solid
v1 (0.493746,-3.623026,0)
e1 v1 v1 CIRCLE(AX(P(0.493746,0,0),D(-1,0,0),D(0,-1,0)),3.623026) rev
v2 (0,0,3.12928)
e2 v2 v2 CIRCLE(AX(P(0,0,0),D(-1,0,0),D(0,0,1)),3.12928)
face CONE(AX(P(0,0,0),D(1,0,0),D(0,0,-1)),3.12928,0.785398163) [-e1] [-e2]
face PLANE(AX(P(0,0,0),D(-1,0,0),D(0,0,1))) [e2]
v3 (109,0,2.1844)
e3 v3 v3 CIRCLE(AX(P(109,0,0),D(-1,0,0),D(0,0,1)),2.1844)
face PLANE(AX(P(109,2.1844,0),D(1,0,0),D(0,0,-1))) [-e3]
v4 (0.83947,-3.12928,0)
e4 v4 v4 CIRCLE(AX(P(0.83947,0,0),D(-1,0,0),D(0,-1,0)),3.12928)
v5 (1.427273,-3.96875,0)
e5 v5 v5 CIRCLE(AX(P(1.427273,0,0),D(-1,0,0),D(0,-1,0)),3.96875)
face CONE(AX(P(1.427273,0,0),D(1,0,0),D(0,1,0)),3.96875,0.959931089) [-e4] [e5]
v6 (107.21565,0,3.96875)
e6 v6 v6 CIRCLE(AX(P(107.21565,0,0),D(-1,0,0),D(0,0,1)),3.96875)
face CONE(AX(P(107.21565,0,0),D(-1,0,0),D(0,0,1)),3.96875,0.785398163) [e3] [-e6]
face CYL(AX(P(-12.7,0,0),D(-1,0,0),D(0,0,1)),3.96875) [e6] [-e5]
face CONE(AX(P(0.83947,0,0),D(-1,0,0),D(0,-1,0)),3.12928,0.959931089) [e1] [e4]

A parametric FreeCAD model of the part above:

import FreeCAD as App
import Part
import Sketcher

V = App.Vector
Q = App.Units.Quantity


def add_polygon(sketch, points):
    """Adds a closed chain of lines whose ends are joined by coincident constraints."""
    first, n = sketch.GeometryCount, len(points)
    for a, b in zip(points, points[1:] + points[:1]):
        sketch.addGeometry(Part.LineSegment(App.Vector(*a, 0), App.Vector(*b, 0)), False)
    for i in range(n):
        sketch.addConstraint(Sketcher.Constraint("Coincident", first + i, 2, first + (i + 1) % n, 1))

doc = App.newDocument("Part")
body = doc.addObject("PartDesign::Body", "Body")

sketch1 = doc.addObject("Sketcher::SketchObject", "Sketch")
body.addObject(sketch1)
sketch1.AttachmentSupport = (doc.XY_Plane, [""])
sketch1.MapMode = "FlatFace"
add_polygon(sketch1, [(0, 3.1), (0, 0), (109, 0), (109, 2.2), (107.2, 4), (0.8, 4)])
sketch1.addConstraint([
    Sketcher.Constraint("Vertical", 0),
    Sketcher.Constraint("Horizontal", 1),
    Sketcher.Constraint("Vertical", 2),
    Sketcher.Constraint("Horizontal", 4),
    Sketcher.Constraint("Coincident", 0, 2, -1, 1),
    Sketcher.Constraint("Perpendicular", 3, 5),
    Sketcher.Constraint("DistanceX", 1, 1, 1, 2, 109.0),
    Sketcher.Constraint("Angle", 3, Q("135 deg")),
    Sketcher.Constraint("DistanceY", 2, 1, 2, 2, 2.1844),
    Sketcher.Constraint("DistanceX", 4, 2, 4, 1, 106.37618),
    Sketcher.Constraint("DistanceY", 0, 2, 0, 1, 3.12928),
])
revolution = doc.addObject("PartDesign::Revolution", "Revolution")
body.addObject(revolution)
revolution.Profile = sketch1
revolution.ReferenceAxis = (sketch1, ["H_Axis"])
revolution.Angle = 360

sketch2 = doc.addObject("Sketcher::SketchObject", "Sketch001")
body.addObject(sketch2)
sketch2.AttachmentSupport = (doc.XY_Plane, [""])
sketch2.MapMode = "FlatFace"
add_polygon(sketch2, [(0.8, -3.1), (0.3, -4), (0.3, -5), (1.4, -5), (1.4, -4)])
sketch2.addConstraint([
    Sketcher.Constraint("Vertical", 1),
    Sketcher.Constraint("Horizontal", 2),
    Sketcher.Constraint("Vertical", 3),
    Sketcher.Constraint("Horizontal", 0, 2, 3, 2),
    Sketcher.Constraint("Equal", 0, 4),
    Sketcher.Constraint("Angle", 0, Q("-125 deg")),
    Sketcher.Constraint("DistanceX", 2, 1, 2, 2, 1.175606),
    Sketcher.Constraint("DistanceY", 1, 2, 1, 1, 0.992188),
    Sketcher.Constraint("DistanceY", 0, 2, -1, 1, 3.96875),
    Sketcher.Constraint("DistanceX", -1, 1, 4, 2, 0.83947),
])
groove = doc.addObject("PartDesign::Groove", "Groove")
body.addObject(groove)
groove.Profile = sketch2
groove.ReferenceAxis = (sketch2, ["H_Axis"])
groove.Angle = 360

doc.recompute()
